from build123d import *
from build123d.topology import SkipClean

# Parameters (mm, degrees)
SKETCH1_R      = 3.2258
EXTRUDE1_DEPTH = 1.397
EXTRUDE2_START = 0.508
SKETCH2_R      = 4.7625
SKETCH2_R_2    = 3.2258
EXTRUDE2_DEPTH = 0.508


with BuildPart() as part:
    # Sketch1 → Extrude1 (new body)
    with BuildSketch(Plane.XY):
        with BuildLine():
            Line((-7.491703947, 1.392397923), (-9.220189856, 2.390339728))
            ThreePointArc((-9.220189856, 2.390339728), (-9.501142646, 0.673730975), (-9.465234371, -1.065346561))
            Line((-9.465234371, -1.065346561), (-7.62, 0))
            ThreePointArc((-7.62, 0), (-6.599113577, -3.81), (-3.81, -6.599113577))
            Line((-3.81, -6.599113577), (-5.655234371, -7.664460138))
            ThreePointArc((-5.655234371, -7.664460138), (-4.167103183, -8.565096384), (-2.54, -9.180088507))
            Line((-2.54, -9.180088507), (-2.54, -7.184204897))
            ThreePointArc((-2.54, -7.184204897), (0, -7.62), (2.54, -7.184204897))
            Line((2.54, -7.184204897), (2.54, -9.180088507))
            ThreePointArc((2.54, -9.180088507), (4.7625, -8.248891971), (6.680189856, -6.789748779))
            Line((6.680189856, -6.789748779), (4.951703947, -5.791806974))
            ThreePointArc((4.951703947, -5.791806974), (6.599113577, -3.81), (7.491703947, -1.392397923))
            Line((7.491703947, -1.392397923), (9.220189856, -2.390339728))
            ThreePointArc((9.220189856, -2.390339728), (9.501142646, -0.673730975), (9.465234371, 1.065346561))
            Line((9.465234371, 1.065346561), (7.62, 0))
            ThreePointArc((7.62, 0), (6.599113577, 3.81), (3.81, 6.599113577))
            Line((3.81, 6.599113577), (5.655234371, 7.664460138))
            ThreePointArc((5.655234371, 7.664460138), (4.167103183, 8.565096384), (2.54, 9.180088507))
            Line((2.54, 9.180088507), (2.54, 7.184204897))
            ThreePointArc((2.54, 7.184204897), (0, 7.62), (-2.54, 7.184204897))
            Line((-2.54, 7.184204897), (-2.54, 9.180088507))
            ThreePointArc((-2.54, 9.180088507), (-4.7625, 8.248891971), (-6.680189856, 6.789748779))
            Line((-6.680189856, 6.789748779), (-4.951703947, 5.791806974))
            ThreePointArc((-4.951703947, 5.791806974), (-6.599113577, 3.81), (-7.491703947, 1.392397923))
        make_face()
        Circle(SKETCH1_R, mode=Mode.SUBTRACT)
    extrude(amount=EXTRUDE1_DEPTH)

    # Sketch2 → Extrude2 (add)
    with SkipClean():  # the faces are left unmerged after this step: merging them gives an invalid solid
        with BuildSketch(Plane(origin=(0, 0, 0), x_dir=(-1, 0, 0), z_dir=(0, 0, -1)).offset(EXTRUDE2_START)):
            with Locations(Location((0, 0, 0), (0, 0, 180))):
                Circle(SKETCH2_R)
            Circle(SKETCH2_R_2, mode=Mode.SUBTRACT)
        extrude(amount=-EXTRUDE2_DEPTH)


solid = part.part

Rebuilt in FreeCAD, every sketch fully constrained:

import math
import FreeCAD as App
import Part
import Sketcher
from FreeCAD import Vector
Q = App.Units.Quantity

doc = App.newDocument("Part")
body = doc.addObject("PartDesign::Body", "Body")

# Sketch on XY plane
sketch1 = body.newObject("Sketcher::SketchObject", "Sketch")
sketch1.AttachmentSupport = (doc.getObject("XY_Plane"), [""])
sketch1.MapMode = "FlatFace"
sketch1.addGeometry([
    Part.LineSegment(Vector(-7.5, 1.4, 0), Vector(-9.2, 2.4, 0)),  # 0
    Part.ArcOfCircle(Part.Circle(Vector(0, 0, 0), Vector(0, 0, 1), 9.5), math.radians(165), math.radians(186)),  # 1
    Part.LineSegment(Vector(-9.5, -1.1, 0), Vector(-7.6, 0, 0)),  # 2
    Part.ArcOfCircle(Part.Circle(Vector(0, 0, 0), Vector(0, 0, 1), 7.6), math.radians(180), math.radians(240)),  # 3
    Part.LineSegment(Vector(-3.8, -6.6, 0), Vector(-5.7, -7.7, 0)),  # 4
    Part.ArcOfCircle(Part.Circle(Vector(0, 0, 0), Vector(0, 0, 1), 9.5), math.radians(-126), math.radians(-105)),  # 5
    Part.LineSegment(Vector(-2.5, -9.2, 0), Vector(-2.5, -7.2, 0)),  # 6
    Part.ArcOfCircle(Part.Circle(Vector(0, 0, 0), Vector(0, 0, 1), 7.6), math.radians(-109), math.radians(-71)),  # 7
    Part.LineSegment(Vector(2.5, -7.2, 0), Vector(2.5, -9.2, 0)),  # 8
    Part.ArcOfCircle(Part.Circle(Vector(0, 0, 0), Vector(0, 0, 1), 9.5), math.radians(-75), math.radians(-45)),  # 9
    Part.LineSegment(Vector(6.7, -6.8, 0), Vector(5, -5.8, 0)),  # 10
    Part.ArcOfCircle(Part.Circle(Vector(0, 0, 0), Vector(0, 0, 1), 7.6), math.radians(-49), math.radians(-11)),  # 11
    Part.LineSegment(Vector(7.5, -1.4, 0), Vector(9.2, -2.4, 0)),  # 12
    Part.ArcOfCircle(Part.Circle(Vector(0, 0, 0), Vector(0, 0, 1), 9.5), math.radians(-15), math.radians(6)),  # 13
    Part.LineSegment(Vector(9.5, 1.1, 0), Vector(7.6, 0, 0)),  # 14
    Part.ArcOfCircle(Part.Circle(Vector(0, 0, 0), Vector(0, 0, 1), 7.6), math.radians(0), math.radians(60)),  # 15
    Part.LineSegment(Vector(3.8, 6.6, 0), Vector(5.7, 7.7, 0)),  # 16
    Part.ArcOfCircle(Part.Circle(Vector(0, 0, 0), Vector(0, 0, 1), 9.5), math.radians(54), math.radians(75)),  # 17
    Part.LineSegment(Vector(2.5, 9.2, 0), Vector(2.5, 7.2, 0)),  # 18
    Part.ArcOfCircle(Part.Circle(Vector(0, 0, 0), Vector(0, 0, 1), 7.6), math.radians(71), math.radians(109)),  # 19
    Part.LineSegment(Vector(-2.5, 7.2, 0), Vector(-2.5, 9.2, 0)),  # 20
    Part.ArcOfCircle(Part.Circle(Vector(0, 0, 0), Vector(0, 0, 1), 9.5), math.radians(105), math.radians(135)),  # 21
    Part.LineSegment(Vector(-6.7, 6.8, 0), Vector(-5, 5.8, 0)),  # 22
    Part.ArcOfCircle(Part.Circle(Vector(0, 0, 0), Vector(0, 0, 1), 7.6), math.radians(131), math.radians(169)),  # 23
    Part.Circle(Vector(0, 0, 0), Vector(0, 0, 1), 3.2),  # 24
], False)
sketch1.addConstraint([
    Sketcher.Constraint("Coincident", 0, 2, 1, 1),
    Sketcher.Constraint("Coincident", 1, 2, 2, 1),
    Sketcher.Constraint("Coincident", 2, 2, 3, 1),
    Sketcher.Constraint("Coincident", 3, 2, 4, 1),
    Sketcher.Constraint("Coincident", 4, 2, 5, 1),
    Sketcher.Constraint("Coincident", 5, 2, 6, 1),
    Sketcher.Constraint("Coincident", 6, 2, 7, 1),
    Sketcher.Constraint("Coincident", 7, 2, 8, 1),
    Sketcher.Constraint("Coincident", 8, 2, 9, 1),
    Sketcher.Constraint("Coincident", 9, 2, 10, 1),
    Sketcher.Constraint("Coincident", 10, 2, 11, 1),
    Sketcher.Constraint("Coincident", 11, 2, 12, 1),
    Sketcher.Constraint("Coincident", 12, 2, 13, 1),
    Sketcher.Constraint("Coincident", 13, 2, 14, 1),
    Sketcher.Constraint("Coincident", 14, 2, 15, 1),
    Sketcher.Constraint("Coincident", 15, 2, 16, 1),
    Sketcher.Constraint("Coincident", 16, 2, 17, 1),
    Sketcher.Constraint("Coincident", 17, 2, 18, 1),
    Sketcher.Constraint("Coincident", 18, 2, 19, 1),
    Sketcher.Constraint("Coincident", 19, 2, 20, 1),
    Sketcher.Constraint("Coincident", 20, 2, 21, 1),
    Sketcher.Constraint("Coincident", 21, 2, 22, 1),
    Sketcher.Constraint("Coincident", 22, 2, 23, 1),
    Sketcher.Constraint("Coincident", 23, 2, 0, 1),
    Sketcher.Constraint("Vertical", 6),
    Sketcher.Constraint("Vertical", 8),
    Sketcher.Constraint("Vertical", 18),
    Sketcher.Constraint("Vertical", 20),
    Sketcher.Constraint("Coincident", 1, 3, -1, 1),
    Sketcher.Constraint("Coincident", 3, 3, -1, 1),
    Sketcher.Constraint("Coincident", 5, 3, -1, 1),
    Sketcher.Constraint("Coincident", 7, 3, -1, 1),
    Sketcher.Constraint("Coincident", 9, 3, -1, 1),
    Sketcher.Constraint("Coincident", 11, 3, -1, 1),
    Sketcher.Constraint("Coincident", 13, 3, -1, 1),
    Sketcher.Constraint("Coincident", 15, 3, -1, 1),
    Sketcher.Constraint("Coincident", 17, 3, -1, 1),
    Sketcher.Constraint("Coincident", 19, 3, -1, 1),
    Sketcher.Constraint("Coincident", 21, 3, -1, 1),
    Sketcher.Constraint("Coincident", 23, 3, -1, 1),
    Sketcher.Constraint("Coincident", 24, 3, -1, 1),
    Sketcher.Constraint("Equal", 1, 5),
    Sketcher.Constraint("Equal", 3, 7),
    Sketcher.Constraint("Equal", 5, 9),
    Sketcher.Constraint("Equal", 7, 11),
    Sketcher.Constraint("Equal", 9, 13),
    Sketcher.Constraint("Equal", 11, 15),
    Sketcher.Constraint("Equal", 13, 17),
    Sketcher.Constraint("Equal", 15, 19),
    Sketcher.Constraint("Equal", 17, 21),
    Sketcher.Constraint("Equal", 19, 23),
    Sketcher.Constraint("PointOnObject", 2, 2, -1),
    Sketcher.Constraint("PointOnObject", 14, 2, -1),
    Sketcher.Constraint("Parallel", 2, 4),
    Sketcher.Constraint("Parallel", 0, 10),
    Sketcher.Constraint("Parallel", 10, 12),
    Sketcher.Constraint("Parallel", 4, 14),
    Sketcher.Constraint("Parallel", 14, 16),
    Sketcher.Constraint("Parallel", 12, 22),
    Sketcher.Constraint("Horizontal", 6, 2, 7, 2),
    Sketcher.Constraint("Horizontal", 18, 2, 19, 2),
    Sketcher.Constraint("Vertical", 8, 2, 17, 2),
    Sketcher.Constraint("Equal", 2, 4),
    Sketcher.Constraint("Equal", 0, 10),
    Sketcher.Constraint("Equal", 10, 12),
    Sketcher.Constraint("Equal", 14, 16),
    Sketcher.Constraint("Equal", 12, 22),
    Sketcher.Constraint("Radius", 3, Q("0.3 in")),
    Sketcher.Constraint("Diameter", 24, Q("0.254 in")),
    Sketcher.Constraint("Angle", 0, Q("150 deg")),
    Sketcher.Constraint("Angle", 2, Q("30 deg")),
    Sketcher.Constraint("Radius", 1, Q("0.375 in")),
    Sketcher.Constraint("DistanceX", 5, 2, -1, 1, Q("0.1 in")),
    Sketcher.Constraint("DistanceX", 10, 2, 11, 2, Q("0.1 in")),
])
pad1 = body.newObject("PartDesign::Pad", "Pad")
pad1.Profile = sketch1
pad1.Length = Q("0.055 in")

# Sketch on XY plane
sketch2 = body.newObject("Sketcher::SketchObject", "Sketch001")
sketch2.AttachmentSupport = (doc.getObject("XY_Plane"), [""])
sketch2.MapMode = "FlatFace"
sketch2.AttachmentOffset = App.Placement(Vector(0, 0, -0.02 * 25.4), App.Rotation())
sketch2.addGeometry([
    Part.Circle(Vector(0, 0, 0), Vector(0, 0, 1), 4.8),
    Part.Circle(Vector(0, 0, 0), Vector(0, 0, 1), 3.2),
], False)
sketch2.addConstraint([
    Sketcher.Constraint("Coincident", 0, 3, -1, 1),
    Sketcher.Constraint("Coincident", 1, 3, -1, 1),
    Sketcher.Constraint("Diameter", 0, Q("0.375 in")),
    Sketcher.Constraint("Diameter", 1, Q("0.254 in")),
])
pad2 = body.newObject("PartDesign::Pad", "Pad001")
pad2.Profile = sketch2
pad2.Length = Q("0.02 in")

doc.recompute()
